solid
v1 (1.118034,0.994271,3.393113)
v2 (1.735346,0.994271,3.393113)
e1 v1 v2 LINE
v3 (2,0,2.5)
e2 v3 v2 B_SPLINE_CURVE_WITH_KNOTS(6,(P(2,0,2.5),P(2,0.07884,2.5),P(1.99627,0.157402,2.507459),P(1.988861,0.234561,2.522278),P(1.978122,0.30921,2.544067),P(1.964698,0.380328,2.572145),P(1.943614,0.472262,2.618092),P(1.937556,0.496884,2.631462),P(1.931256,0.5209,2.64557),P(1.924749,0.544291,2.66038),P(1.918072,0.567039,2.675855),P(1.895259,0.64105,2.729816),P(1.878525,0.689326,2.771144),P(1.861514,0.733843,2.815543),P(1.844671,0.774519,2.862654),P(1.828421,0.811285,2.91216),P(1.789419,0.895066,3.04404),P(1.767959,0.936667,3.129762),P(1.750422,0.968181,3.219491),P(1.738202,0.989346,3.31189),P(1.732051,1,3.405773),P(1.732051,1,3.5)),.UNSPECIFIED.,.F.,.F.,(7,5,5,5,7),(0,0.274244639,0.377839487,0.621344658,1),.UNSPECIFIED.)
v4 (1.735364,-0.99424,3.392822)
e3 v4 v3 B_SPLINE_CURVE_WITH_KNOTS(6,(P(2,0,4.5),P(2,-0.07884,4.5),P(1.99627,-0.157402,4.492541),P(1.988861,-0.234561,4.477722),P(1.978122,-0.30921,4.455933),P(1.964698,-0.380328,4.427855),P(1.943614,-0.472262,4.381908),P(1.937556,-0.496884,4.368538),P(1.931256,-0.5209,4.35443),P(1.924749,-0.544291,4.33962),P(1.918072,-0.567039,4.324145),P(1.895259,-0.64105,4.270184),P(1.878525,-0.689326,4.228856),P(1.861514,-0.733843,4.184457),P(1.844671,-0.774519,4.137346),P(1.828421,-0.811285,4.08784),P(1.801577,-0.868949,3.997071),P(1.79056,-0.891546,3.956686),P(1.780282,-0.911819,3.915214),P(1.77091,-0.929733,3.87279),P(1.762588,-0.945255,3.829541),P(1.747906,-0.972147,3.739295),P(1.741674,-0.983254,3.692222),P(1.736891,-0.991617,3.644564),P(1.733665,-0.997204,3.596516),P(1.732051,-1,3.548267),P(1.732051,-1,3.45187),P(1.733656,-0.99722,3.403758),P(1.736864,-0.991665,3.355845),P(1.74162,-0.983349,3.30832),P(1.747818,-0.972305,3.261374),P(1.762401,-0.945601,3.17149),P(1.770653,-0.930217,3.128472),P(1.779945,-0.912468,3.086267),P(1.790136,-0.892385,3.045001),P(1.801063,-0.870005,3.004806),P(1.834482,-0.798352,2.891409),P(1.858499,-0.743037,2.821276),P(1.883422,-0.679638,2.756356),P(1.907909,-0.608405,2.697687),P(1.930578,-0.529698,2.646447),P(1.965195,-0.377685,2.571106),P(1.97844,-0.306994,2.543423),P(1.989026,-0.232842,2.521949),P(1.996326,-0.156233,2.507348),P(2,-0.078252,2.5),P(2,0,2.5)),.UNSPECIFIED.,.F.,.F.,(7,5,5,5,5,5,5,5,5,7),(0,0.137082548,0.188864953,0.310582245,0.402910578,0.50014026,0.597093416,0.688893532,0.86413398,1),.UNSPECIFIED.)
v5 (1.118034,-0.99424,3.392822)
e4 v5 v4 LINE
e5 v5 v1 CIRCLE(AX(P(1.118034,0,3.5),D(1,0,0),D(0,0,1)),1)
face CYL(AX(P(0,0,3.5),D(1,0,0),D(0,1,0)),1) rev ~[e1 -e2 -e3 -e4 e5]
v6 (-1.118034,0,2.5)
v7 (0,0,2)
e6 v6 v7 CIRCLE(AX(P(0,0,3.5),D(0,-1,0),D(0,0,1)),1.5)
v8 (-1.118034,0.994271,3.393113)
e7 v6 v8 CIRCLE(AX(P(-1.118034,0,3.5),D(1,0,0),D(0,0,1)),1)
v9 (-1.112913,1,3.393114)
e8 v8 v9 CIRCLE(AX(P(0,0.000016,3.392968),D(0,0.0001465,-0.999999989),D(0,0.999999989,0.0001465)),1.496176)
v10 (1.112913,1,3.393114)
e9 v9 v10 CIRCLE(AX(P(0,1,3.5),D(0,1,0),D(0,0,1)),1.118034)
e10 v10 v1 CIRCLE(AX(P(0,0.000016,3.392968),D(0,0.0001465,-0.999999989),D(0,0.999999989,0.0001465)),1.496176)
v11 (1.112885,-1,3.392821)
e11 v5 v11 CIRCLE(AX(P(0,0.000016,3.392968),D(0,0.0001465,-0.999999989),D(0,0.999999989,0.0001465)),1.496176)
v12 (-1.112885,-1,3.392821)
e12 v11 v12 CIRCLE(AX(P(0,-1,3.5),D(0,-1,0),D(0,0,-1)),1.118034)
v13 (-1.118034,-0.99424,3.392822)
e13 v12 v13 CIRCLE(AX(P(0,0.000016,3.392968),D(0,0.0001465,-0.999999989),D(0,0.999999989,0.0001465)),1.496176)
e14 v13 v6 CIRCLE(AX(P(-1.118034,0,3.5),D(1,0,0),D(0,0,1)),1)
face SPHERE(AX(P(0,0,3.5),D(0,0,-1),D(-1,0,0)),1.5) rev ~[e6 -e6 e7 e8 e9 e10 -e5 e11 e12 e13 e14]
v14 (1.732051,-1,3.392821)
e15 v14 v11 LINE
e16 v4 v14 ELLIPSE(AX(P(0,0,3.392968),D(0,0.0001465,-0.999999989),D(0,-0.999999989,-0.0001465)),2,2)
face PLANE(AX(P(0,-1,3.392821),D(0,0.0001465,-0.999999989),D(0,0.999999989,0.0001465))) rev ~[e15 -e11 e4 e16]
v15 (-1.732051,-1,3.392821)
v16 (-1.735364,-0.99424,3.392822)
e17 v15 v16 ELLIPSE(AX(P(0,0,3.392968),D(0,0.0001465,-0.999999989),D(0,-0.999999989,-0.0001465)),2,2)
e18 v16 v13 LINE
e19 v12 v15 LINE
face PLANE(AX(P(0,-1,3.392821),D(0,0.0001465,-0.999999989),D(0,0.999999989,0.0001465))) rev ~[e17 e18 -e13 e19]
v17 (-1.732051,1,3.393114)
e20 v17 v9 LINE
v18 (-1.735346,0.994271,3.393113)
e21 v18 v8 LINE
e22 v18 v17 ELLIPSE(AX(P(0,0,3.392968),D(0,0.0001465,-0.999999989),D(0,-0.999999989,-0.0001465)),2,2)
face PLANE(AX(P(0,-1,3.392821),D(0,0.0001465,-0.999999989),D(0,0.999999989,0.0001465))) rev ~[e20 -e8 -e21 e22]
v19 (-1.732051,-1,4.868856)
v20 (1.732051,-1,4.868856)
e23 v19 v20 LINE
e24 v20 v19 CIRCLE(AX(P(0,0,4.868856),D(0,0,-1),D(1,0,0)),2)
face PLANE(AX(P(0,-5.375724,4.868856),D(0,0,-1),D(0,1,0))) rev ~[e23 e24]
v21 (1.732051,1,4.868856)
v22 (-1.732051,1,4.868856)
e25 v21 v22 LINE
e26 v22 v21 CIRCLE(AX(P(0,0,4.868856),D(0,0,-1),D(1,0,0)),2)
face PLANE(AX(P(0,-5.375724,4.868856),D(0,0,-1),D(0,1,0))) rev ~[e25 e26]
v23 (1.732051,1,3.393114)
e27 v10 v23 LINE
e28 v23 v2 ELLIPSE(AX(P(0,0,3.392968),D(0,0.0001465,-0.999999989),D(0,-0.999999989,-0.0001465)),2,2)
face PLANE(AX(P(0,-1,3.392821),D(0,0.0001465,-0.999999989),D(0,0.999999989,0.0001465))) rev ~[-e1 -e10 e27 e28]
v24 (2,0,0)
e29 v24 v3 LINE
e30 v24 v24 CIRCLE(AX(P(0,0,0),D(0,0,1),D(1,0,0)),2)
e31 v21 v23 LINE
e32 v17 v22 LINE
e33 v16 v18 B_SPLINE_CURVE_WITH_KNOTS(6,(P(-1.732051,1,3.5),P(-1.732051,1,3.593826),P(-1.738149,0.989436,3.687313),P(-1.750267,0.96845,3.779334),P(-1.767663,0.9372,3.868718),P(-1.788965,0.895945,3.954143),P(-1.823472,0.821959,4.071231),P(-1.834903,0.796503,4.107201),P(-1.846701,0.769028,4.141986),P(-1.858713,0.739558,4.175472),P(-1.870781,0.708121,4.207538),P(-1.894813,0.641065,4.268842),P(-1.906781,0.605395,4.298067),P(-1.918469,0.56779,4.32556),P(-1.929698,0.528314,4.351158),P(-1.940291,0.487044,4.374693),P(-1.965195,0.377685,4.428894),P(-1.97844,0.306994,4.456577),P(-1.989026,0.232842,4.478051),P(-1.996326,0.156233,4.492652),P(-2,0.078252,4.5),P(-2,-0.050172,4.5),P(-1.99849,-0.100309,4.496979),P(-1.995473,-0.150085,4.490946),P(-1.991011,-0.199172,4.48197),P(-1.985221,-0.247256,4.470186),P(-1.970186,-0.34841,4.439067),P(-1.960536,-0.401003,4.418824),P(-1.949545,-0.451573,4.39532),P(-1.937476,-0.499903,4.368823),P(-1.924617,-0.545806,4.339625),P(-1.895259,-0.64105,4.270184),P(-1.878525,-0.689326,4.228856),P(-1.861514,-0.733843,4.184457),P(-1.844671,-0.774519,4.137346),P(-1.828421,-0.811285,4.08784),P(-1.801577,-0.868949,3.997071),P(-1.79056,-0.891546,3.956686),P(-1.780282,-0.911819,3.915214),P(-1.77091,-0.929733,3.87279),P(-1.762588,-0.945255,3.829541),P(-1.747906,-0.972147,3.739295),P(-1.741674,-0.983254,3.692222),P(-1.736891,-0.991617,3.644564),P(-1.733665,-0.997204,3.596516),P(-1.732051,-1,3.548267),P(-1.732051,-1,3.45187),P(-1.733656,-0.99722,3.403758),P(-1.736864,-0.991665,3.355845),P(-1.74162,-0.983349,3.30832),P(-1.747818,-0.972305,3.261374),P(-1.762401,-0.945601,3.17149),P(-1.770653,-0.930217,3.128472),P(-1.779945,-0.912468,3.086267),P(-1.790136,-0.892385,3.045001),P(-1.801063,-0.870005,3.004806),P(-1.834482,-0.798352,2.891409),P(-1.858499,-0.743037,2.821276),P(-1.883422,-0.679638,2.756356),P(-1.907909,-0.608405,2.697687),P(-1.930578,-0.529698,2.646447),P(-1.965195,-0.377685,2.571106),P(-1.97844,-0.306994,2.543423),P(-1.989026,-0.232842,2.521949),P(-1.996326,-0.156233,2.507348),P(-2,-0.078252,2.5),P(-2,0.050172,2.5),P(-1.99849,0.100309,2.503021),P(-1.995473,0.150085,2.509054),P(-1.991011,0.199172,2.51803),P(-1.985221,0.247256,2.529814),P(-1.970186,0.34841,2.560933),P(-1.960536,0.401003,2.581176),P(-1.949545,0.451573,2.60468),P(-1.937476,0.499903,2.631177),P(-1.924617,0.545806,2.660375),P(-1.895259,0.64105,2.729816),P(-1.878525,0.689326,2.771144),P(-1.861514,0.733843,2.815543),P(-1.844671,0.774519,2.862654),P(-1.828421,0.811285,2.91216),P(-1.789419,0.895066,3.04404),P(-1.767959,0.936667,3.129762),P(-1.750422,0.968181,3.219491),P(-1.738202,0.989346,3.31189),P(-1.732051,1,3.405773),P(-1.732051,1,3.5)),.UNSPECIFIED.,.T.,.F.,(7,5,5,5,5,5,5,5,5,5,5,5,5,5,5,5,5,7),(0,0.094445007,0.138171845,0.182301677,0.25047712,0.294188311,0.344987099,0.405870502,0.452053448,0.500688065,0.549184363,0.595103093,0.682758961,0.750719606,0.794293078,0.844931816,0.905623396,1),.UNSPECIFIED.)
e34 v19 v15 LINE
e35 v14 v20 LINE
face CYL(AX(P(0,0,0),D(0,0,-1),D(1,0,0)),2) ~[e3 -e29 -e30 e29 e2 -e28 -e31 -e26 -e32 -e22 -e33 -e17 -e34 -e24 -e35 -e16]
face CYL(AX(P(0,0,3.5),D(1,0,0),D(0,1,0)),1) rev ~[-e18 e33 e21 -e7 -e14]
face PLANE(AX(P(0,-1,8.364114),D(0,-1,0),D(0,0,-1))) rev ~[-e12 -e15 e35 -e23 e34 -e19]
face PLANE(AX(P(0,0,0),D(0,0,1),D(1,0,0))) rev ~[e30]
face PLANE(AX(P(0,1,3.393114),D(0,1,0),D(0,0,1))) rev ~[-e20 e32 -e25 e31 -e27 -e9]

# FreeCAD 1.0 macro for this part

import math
import FreeCAD as App
import Part
import Sketcher

V = App.Vector
Q = App.Units.Quantity

doc = App.newDocument("Part")
body = doc.addObject("PartDesign::Body", "Body")

sketch1 = body.newObject("Sketcher::SketchObject", "Sketch")
sketch1.AttachmentSupport = (doc.getObject("XY_Plane"), [""])
sketch1.MapMode = "FlatFace"
sketch1.addGeometry(Part.Circle(V(0, 0, 0), V(0, 0, 1), 2), False)
sketch1.addConstraint([
    Sketcher.Constraint("Coincident", 0, 3, -1, 1),
    Sketcher.Constraint("Diameter", 0, Q("4 mm")),
])
pad1 = body.newObject("PartDesign::Pad", "Pad")
pad1.Profile = sketch1
pad1.Length = 6

sketch2 = body.newObject("Sketcher::SketchObject", "Sketch001")
sketch2.AttachmentSupport = (doc.getObject("YZ_Plane"), [""])
sketch2.MapMode = "FlatFace"
sketch2.addGeometry(Part.Circle(V(0, 3.5, 0), V(0, 0, 1), 1), False)
sketch2.addConstraint([
    Sketcher.Constraint("PointOnObject", 0, 3, -2),
    Sketcher.Constraint("Diameter", 0, Q("2 mm")),
    Sketcher.Constraint("DistanceY", -1, 1, 0, 3, Q("3.5 mm")),
])
pocket1 = body.newObject("PartDesign::Pocket", "Pocket")
pocket1.Profile = sketch2
pocket1.Length = 25
pocket1.Midplane = True

sketch3 = body.newObject("Sketcher::SketchObject", "Sketch002")
sketch3.AttachmentSupport = (doc.getObject("YZ_Plane"), [""])
sketch3.MapMode = "FlatFace"
sketch3.addGeometry([
    Part.LineSegment(V(-1, 3.4, 0), V(1, 3.4, 0)),
    Part.LineSegment(V(1, 3.4, 0), V(1, 8.4, 0)),
    Part.LineSegment(V(1, 8.4, 0), V(-1, 8.4, 0)),
    Part.LineSegment(V(-1, 8.4, 0), V(-1, 3.4, 0)),
], False)
sketch3.addConstraint([
    Sketcher.Constraint("Coincident", 0, 2, 1, 1),
    Sketcher.Constraint("Coincident", 1, 2, 2, 1),
    Sketcher.Constraint("Coincident", 2, 2, 3, 1),
    Sketcher.Constraint("Coincident", 3, 2, 0, 1),
    Sketcher.Constraint("Vertical", 1),
    Sketcher.Constraint("Horizontal", 2),
    Sketcher.Constraint("Vertical", 3),
    Sketcher.Constraint("DistanceX", 2, 2, 2, 1, Q("2 mm")),
    Sketcher.Constraint("DistanceX", -1, 1, 0, 2, Q("1 mm")),
    Sketcher.Constraint("DistanceY", 1, 1, 1, 2, Q("4.971 mm")),
    Sketcher.Constraint("DistanceY", 3, 2, 3, 1, Q("4.971293 mm")),
    Sketcher.Constraint("DistanceY", -1, 1, 3, 2, Q("3.392821 mm")),
])
pocket2 = body.newObject("PartDesign::Pocket", "Pocket001")
pocket2.Profile = sketch3
pocket2.Length = 25
pocket2.Midplane = True

sketch4 = body.newObject("Sketcher::SketchObject", "Sketch003")
sketch4.AttachmentSupport = (doc.getObject("XZ_Plane"), [""])
sketch4.MapMode = "FlatFace"
sketch4.addGeometry([
    Part.LineSegment(V(0, 2, 0), V(0, 5, 0)),
    Part.ArcOfCircle(Part.Circle(V(0, 3.5, 0), V(0, 0, 1), 1.5), math.radians(90), math.radians(270)),
], False)
sketch4.addConstraint([
    Sketcher.Constraint("Coincident", 0, 1, 1, 2),
    Sketcher.Constraint("Coincident", 1, 1, 0, 2),
    Sketcher.Constraint("Vertical", 0),
    Sketcher.Constraint("PointOnObject", 1, 3, -2),
    Sketcher.Constraint("PointOnObject", 0, 1, -2),
    Sketcher.Constraint("Radius", 1, Q("1.5 mm")),
    Sketcher.Constraint("DistanceY", -1, 1, 0, 1, Q("2 mm")),
])
groove = body.newObject("PartDesign::Groove", "Groove")
groove.Profile = sketch4
groove.ReferenceAxis = (sketch4, ["V_Axis"])
groove.Angle = 360

sketch5 = body.newObject("Sketcher::SketchObject", "Sketch004")
sketch5.AttachmentSupport = (doc.getObject("YZ_Plane"), [""])
sketch5.MapMode = "FlatFace"
sketch5.addGeometry([
    Part.LineSegment(V(-5.4, 7.3, 0), V(-5.4, 4.9, 0)),
    Part.LineSegment(V(-5.4, 4.9, 0), V(6.9, 4.9, 0)),
    Part.LineSegment(V(6.9, 4.9, 0), V(6.9, 7.3, 0)),
    Part.LineSegment(V(6.9, 7.3, 0), V(-5.4, 7.3, 0)),
], False)
sketch5.addConstraint([
    Sketcher.Constraint("Coincident", 0, 2, 1, 1),
    Sketcher.Constraint("Coincident", 1, 2, 2, 1),
    Sketcher.Constraint("Coincident", 2, 2, 3, 1),
    Sketcher.Constraint("Coincident", 3, 2, 0, 1),
    Sketcher.Constraint("Vertical", 0),
    Sketcher.Constraint("Horizontal", 1),
    Sketcher.Constraint("Vertical", 2),
    Sketcher.Constraint("Horizontal", 3),
    Sketcher.Constraint("DistanceX", 1, 1, 1, 2, Q("12.246756 mm")),
    Sketcher.Constraint("DistanceY", 0, 2, 0, 1, Q("2.410266 mm")),
    Sketcher.Constraint("DistanceX", -1, 1, 1, 2, Q("6.871032 mm")),
    Sketcher.Constraint("DistanceY", -1, 1, 0, 2, Q("4.868856 mm")),
])
pocket3 = body.newObject("PartDesign::Pocket", "Pocket002")
pocket3.Profile = sketch5
pocket3.Length = 25
pocket3.Midplane = True

doc.recompute()
